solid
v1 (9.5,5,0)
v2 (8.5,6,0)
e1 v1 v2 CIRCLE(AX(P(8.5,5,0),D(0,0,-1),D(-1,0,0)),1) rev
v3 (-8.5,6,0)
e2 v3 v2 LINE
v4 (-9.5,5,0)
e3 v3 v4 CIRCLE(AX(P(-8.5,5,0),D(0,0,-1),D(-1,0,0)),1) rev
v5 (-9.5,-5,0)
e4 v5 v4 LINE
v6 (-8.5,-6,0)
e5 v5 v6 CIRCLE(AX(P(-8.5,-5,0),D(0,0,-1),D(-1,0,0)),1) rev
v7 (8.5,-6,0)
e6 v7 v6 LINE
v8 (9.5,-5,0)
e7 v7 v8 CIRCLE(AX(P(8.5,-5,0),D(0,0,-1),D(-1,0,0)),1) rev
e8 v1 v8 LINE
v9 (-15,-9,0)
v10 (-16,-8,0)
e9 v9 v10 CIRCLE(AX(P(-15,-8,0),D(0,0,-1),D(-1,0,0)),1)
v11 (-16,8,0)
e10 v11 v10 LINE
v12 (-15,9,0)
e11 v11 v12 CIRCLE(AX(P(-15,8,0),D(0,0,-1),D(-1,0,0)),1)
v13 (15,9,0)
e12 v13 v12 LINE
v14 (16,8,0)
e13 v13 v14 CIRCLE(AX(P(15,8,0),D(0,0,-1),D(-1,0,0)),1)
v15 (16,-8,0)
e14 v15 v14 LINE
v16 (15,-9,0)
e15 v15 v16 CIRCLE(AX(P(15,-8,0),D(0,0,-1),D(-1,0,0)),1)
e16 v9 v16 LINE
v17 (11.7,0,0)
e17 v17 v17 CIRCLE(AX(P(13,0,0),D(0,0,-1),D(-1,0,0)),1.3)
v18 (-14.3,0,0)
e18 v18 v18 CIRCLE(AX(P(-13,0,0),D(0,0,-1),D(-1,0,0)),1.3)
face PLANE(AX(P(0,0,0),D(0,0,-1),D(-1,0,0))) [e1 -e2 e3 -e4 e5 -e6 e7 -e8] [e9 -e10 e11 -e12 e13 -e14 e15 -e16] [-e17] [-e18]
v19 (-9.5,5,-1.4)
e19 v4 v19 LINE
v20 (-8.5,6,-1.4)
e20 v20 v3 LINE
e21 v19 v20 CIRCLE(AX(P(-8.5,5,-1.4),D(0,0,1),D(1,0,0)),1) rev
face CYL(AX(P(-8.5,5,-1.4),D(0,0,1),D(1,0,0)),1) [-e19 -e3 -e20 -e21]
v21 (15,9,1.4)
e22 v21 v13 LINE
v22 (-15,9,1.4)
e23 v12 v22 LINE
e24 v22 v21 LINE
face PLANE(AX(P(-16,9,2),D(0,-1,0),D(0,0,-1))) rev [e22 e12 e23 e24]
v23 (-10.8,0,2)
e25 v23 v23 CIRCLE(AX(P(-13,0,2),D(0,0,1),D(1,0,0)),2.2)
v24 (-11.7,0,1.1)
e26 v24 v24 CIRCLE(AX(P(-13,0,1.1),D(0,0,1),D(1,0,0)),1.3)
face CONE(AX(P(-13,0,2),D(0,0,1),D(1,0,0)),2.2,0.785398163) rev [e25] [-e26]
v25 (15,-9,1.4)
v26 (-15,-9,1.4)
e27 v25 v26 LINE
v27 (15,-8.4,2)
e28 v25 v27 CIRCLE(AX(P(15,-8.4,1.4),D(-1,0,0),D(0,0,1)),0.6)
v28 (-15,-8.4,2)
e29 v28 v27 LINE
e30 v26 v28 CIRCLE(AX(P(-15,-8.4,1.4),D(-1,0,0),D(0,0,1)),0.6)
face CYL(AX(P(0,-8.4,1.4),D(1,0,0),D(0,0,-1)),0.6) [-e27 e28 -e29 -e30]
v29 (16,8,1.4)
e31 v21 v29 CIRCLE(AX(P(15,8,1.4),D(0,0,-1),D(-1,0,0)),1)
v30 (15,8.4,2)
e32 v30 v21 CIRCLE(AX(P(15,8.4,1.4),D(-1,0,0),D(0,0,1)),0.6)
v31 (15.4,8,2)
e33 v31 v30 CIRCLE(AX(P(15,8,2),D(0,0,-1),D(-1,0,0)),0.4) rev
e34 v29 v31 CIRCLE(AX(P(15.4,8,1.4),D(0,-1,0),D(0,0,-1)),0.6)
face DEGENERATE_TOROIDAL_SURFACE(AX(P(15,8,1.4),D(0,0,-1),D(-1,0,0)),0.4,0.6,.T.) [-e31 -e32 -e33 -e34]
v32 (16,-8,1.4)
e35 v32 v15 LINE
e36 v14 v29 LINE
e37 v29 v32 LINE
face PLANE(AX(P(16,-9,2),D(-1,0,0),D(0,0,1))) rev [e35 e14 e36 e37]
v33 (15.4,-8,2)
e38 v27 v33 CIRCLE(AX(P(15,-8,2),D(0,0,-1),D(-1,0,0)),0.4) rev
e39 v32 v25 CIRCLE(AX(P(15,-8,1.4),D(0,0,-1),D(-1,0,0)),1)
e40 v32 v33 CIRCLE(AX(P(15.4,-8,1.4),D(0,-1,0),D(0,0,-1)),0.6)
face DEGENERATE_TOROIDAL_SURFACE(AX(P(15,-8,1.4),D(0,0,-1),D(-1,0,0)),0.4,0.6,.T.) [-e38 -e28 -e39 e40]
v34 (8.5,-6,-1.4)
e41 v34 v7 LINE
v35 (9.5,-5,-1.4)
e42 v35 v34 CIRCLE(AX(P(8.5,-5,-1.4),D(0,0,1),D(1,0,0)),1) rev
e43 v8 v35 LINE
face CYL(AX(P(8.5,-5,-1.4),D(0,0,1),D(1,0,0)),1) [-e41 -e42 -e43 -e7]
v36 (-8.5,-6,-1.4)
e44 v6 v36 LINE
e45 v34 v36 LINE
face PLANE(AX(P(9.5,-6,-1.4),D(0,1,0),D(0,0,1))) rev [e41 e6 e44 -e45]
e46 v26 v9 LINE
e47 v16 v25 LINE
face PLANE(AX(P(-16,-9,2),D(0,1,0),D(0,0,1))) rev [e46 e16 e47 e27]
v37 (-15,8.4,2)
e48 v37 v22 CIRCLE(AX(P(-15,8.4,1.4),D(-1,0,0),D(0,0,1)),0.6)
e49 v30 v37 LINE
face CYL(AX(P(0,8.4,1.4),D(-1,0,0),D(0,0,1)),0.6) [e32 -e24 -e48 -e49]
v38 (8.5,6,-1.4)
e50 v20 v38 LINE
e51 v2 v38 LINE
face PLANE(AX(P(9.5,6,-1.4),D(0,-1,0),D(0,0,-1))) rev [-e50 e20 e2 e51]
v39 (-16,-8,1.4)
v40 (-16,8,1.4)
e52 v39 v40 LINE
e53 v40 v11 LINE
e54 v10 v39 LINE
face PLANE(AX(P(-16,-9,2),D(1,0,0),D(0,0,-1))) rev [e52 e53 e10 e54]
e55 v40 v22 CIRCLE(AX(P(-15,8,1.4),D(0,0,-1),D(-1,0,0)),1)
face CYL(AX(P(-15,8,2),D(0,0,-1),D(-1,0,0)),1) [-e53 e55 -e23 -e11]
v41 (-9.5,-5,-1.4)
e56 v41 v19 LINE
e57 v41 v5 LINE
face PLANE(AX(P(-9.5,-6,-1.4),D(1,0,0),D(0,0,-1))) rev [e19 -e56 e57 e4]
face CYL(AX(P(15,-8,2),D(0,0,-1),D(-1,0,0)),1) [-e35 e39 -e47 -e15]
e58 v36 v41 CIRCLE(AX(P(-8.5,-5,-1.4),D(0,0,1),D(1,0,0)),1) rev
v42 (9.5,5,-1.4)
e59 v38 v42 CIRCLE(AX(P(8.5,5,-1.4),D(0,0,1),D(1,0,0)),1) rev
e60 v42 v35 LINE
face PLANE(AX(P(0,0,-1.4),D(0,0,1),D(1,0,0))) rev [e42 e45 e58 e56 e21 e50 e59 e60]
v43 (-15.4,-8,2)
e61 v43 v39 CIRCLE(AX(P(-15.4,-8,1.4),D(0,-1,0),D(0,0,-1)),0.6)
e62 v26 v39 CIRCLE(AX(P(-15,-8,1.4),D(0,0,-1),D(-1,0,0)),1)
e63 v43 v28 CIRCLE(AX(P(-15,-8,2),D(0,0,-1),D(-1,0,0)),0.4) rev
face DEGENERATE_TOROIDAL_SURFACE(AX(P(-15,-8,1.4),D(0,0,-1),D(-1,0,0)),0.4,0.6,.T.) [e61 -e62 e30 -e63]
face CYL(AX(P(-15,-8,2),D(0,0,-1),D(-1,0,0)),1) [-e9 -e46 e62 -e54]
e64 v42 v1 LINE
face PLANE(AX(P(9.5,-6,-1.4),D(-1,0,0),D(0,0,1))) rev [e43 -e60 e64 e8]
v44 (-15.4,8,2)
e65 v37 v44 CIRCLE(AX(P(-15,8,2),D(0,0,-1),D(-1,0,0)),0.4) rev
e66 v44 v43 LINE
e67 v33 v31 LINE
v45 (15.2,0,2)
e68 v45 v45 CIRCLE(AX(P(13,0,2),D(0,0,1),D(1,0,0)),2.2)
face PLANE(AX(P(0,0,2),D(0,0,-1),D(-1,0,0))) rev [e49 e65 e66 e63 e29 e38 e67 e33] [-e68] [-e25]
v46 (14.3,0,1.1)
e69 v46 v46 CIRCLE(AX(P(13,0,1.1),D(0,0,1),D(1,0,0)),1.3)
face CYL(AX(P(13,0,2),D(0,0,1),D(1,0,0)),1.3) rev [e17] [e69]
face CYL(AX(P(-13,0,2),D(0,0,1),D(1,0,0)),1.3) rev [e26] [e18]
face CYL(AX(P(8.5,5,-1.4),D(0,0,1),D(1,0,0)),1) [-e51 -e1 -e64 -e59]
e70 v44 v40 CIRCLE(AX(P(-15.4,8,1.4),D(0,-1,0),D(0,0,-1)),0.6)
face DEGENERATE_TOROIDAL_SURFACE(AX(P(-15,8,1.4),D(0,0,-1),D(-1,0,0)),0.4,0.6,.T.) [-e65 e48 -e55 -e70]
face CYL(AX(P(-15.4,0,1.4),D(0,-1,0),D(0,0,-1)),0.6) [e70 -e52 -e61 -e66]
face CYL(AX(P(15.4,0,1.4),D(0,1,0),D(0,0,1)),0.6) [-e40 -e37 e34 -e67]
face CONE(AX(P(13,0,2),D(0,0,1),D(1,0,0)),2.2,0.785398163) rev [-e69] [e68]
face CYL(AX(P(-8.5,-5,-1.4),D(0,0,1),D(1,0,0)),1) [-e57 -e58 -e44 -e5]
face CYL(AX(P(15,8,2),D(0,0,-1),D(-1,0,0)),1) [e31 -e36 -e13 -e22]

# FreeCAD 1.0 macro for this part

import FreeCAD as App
import Part
import Sketcher
from FreeCAD import Vector
Q = App.Units.Quantity


def edges_at(feature, points):
    """Names of the edges that pass closest to the given points."""
    edges = feature.Shape.Edges
    near = lambda p: min(range(len(edges)), key=lambda i: edges[i].distToShape(Part.Vertex(*p))[0])
    return sorted({f"Edge{near(p) + 1}" for p in points})

doc = App.newDocument("Part")
body = doc.addObject("PartDesign::Body", "Body")

# Sketch on XY plane
sketch1 = body.newObject("Sketcher::SketchObject", "Sketch")
sketch1.AttachmentSupport = (doc.getObject("XY_Plane"), [""])
sketch1.MapMode = "FlatFace"
sketch1.addGeometry([
    Part.LineSegment(Vector(-16, 9, 0), Vector(-16, -9, 0)),
    Part.LineSegment(Vector(-16, -9, 0), Vector(16, -9, 0)),
    Part.LineSegment(Vector(16, -9, 0), Vector(16, 9, 0)),
    Part.LineSegment(Vector(16, 9, 0), Vector(-16, 9, 0)),
], False)
sketch1.addConstraint([
    Sketcher.Constraint("Coincident", 0, 2, 1, 1),
    Sketcher.Constraint("Coincident", 1, 2, 2, 1),
    Sketcher.Constraint("Coincident", 2, 2, 3, 1),
    Sketcher.Constraint("Coincident", 3, 2, 0, 1),
    Sketcher.Constraint("Vertical", 0),
    Sketcher.Constraint("Horizontal", 1),
    Sketcher.Constraint("Vertical", 2),
    Sketcher.Constraint("Horizontal", 3),
    Sketcher.Constraint("Symmetric", 0, 2, 2, 2, -1, 1),
    Sketcher.Constraint("DistanceX", 1, 1, 1, 2, Q("32 mm")),
    Sketcher.Constraint("DistanceY", 0, 2, 0, 1, Q("18 mm")),
])
pad1 = body.newObject("PartDesign::Pad", "Pad")
pad1.Profile = sketch1
pad1.Length = 2

# Sketch on XY plane
sketch2 = body.newObject("Sketcher::SketchObject", "Sketch001")
sketch2.AttachmentSupport = (doc.getObject("XY_Plane"), [""])
sketch2.MapMode = "FlatFace"
sketch2.addGeometry([
    Part.LineSegment(Vector(10, 6, 0), Vector(10, -6, 0)),
    Part.LineSegment(Vector(10, -6, 0), Vector(-10, -6, 0)),
    Part.LineSegment(Vector(-10, -6, 0), Vector(-10, 6, 0)),
    Part.LineSegment(Vector(-10, 6, 0), Vector(10, 6, 0)),
], False)
sketch2.addConstraint([
    Sketcher.Constraint("Coincident", 0, 2, 1, 1),
    Sketcher.Constraint("Coincident", 1, 2, 2, 1),
    Sketcher.Constraint("Coincident", 2, 2, 3, 1),
    Sketcher.Constraint("Coincident", 3, 2, 0, 1),
    Sketcher.Constraint("Vertical", 0),
    Sketcher.Constraint("Horizontal", 1),
    Sketcher.Constraint("Vertical", 2),
    Sketcher.Constraint("Horizontal", 3),
    Sketcher.Constraint("Symmetric", 0, 2, 2, 2, -1, 1),
    Sketcher.Constraint("DistanceX", 1, 2, 1, 1, Q("19 mm")),
    Sketcher.Constraint("DistanceY", 0, 2, 0, 1, Q("12 mm")),
])
pad2 = body.newObject("PartDesign::Pad", "Pad001")
pad2.Profile = sketch2
pad2.Length = 1.4
pad2.Reversed = True
doc.recompute()

fillet = body.newObject("PartDesign::Fillet", "Fillet")
fillet.Base = (pad2, edges_at(pad2, [
    (16, -9, 1),
    (-16, -9, 1),
    (-16, 9, 1),
    (16, 9, 1),
]))
fillet.Radius = 1
doc.recompute()

fillet2 = body.newObject("PartDesign::Fillet", "Fillet001")
fillet2.Base = (fillet, edges_at(fillet, [
    (16, 0, 2),
    (0, -9, 2),
    (0, 9, 2),
    (-16, 0, 2),
    (15.707, 8.707, 2),
    (-15.707, 8.707, 2),
    (-15.707, -8.707, 2),
    (15.707, -8.707, 2),
]))
fillet2.Radius = 0.6
doc.recompute()

fillet3 = body.newObject("PartDesign::Fillet", "Fillet002")
fillet3.Base = (fillet2, edges_at(fillet2, [
    (-9.5, -6, -0.7),
    (-9.5, 6, -0.7),
    (9.5, 6, -0.7),
    (9.5, -6, -0.7),
]))
fillet3.Radius = 1

# Sketch on XY plane
sketch3 = body.newObject("Sketcher::SketchObject", "Sketch002")
sketch3.AttachmentSupport = (doc.getObject("XY_Plane"), [""])
sketch3.MapMode = "FlatFace"
sketch3.AttachmentOffset = App.Placement(Vector(0, 0, 2), App.Rotation())
sketch3.addGeometry(Part.Circle(Vector(-13, 0, 0), Vector(0, 0, 1), 1.3), False)
sketch3.addConstraint([
    Sketcher.Constraint("PointOnObject", 0, 3, -1),
    Sketcher.Constraint("Diameter", 0, Q("2.6 mm")),
    Sketcher.Constraint("DistanceX", 0, 3, -1, 1, Q("13 mm")),
])
doc.recompute()
hole = body.newObject("PartDesign::Hole", "Hole")
hole.Profile = sketch3
hole.ThreadType = "None"
hole.Diameter = 2.6
hole.DepthType = "ThroughAll"
hole.HoleCutType = "Countersink"
hole.HoleCutDiameter = 4.4
hole.HoleCutCountersinkAngle = 90
doc.recompute()

mirrored = body.newObject("PartDesign::Mirrored", "Mirrored")
mirrored.Originals = [hole]
mirrored.MirrorPlane = (doc.getObject("YZ_Plane"), [""])
body.Tip = mirrored

doc.recompute()
